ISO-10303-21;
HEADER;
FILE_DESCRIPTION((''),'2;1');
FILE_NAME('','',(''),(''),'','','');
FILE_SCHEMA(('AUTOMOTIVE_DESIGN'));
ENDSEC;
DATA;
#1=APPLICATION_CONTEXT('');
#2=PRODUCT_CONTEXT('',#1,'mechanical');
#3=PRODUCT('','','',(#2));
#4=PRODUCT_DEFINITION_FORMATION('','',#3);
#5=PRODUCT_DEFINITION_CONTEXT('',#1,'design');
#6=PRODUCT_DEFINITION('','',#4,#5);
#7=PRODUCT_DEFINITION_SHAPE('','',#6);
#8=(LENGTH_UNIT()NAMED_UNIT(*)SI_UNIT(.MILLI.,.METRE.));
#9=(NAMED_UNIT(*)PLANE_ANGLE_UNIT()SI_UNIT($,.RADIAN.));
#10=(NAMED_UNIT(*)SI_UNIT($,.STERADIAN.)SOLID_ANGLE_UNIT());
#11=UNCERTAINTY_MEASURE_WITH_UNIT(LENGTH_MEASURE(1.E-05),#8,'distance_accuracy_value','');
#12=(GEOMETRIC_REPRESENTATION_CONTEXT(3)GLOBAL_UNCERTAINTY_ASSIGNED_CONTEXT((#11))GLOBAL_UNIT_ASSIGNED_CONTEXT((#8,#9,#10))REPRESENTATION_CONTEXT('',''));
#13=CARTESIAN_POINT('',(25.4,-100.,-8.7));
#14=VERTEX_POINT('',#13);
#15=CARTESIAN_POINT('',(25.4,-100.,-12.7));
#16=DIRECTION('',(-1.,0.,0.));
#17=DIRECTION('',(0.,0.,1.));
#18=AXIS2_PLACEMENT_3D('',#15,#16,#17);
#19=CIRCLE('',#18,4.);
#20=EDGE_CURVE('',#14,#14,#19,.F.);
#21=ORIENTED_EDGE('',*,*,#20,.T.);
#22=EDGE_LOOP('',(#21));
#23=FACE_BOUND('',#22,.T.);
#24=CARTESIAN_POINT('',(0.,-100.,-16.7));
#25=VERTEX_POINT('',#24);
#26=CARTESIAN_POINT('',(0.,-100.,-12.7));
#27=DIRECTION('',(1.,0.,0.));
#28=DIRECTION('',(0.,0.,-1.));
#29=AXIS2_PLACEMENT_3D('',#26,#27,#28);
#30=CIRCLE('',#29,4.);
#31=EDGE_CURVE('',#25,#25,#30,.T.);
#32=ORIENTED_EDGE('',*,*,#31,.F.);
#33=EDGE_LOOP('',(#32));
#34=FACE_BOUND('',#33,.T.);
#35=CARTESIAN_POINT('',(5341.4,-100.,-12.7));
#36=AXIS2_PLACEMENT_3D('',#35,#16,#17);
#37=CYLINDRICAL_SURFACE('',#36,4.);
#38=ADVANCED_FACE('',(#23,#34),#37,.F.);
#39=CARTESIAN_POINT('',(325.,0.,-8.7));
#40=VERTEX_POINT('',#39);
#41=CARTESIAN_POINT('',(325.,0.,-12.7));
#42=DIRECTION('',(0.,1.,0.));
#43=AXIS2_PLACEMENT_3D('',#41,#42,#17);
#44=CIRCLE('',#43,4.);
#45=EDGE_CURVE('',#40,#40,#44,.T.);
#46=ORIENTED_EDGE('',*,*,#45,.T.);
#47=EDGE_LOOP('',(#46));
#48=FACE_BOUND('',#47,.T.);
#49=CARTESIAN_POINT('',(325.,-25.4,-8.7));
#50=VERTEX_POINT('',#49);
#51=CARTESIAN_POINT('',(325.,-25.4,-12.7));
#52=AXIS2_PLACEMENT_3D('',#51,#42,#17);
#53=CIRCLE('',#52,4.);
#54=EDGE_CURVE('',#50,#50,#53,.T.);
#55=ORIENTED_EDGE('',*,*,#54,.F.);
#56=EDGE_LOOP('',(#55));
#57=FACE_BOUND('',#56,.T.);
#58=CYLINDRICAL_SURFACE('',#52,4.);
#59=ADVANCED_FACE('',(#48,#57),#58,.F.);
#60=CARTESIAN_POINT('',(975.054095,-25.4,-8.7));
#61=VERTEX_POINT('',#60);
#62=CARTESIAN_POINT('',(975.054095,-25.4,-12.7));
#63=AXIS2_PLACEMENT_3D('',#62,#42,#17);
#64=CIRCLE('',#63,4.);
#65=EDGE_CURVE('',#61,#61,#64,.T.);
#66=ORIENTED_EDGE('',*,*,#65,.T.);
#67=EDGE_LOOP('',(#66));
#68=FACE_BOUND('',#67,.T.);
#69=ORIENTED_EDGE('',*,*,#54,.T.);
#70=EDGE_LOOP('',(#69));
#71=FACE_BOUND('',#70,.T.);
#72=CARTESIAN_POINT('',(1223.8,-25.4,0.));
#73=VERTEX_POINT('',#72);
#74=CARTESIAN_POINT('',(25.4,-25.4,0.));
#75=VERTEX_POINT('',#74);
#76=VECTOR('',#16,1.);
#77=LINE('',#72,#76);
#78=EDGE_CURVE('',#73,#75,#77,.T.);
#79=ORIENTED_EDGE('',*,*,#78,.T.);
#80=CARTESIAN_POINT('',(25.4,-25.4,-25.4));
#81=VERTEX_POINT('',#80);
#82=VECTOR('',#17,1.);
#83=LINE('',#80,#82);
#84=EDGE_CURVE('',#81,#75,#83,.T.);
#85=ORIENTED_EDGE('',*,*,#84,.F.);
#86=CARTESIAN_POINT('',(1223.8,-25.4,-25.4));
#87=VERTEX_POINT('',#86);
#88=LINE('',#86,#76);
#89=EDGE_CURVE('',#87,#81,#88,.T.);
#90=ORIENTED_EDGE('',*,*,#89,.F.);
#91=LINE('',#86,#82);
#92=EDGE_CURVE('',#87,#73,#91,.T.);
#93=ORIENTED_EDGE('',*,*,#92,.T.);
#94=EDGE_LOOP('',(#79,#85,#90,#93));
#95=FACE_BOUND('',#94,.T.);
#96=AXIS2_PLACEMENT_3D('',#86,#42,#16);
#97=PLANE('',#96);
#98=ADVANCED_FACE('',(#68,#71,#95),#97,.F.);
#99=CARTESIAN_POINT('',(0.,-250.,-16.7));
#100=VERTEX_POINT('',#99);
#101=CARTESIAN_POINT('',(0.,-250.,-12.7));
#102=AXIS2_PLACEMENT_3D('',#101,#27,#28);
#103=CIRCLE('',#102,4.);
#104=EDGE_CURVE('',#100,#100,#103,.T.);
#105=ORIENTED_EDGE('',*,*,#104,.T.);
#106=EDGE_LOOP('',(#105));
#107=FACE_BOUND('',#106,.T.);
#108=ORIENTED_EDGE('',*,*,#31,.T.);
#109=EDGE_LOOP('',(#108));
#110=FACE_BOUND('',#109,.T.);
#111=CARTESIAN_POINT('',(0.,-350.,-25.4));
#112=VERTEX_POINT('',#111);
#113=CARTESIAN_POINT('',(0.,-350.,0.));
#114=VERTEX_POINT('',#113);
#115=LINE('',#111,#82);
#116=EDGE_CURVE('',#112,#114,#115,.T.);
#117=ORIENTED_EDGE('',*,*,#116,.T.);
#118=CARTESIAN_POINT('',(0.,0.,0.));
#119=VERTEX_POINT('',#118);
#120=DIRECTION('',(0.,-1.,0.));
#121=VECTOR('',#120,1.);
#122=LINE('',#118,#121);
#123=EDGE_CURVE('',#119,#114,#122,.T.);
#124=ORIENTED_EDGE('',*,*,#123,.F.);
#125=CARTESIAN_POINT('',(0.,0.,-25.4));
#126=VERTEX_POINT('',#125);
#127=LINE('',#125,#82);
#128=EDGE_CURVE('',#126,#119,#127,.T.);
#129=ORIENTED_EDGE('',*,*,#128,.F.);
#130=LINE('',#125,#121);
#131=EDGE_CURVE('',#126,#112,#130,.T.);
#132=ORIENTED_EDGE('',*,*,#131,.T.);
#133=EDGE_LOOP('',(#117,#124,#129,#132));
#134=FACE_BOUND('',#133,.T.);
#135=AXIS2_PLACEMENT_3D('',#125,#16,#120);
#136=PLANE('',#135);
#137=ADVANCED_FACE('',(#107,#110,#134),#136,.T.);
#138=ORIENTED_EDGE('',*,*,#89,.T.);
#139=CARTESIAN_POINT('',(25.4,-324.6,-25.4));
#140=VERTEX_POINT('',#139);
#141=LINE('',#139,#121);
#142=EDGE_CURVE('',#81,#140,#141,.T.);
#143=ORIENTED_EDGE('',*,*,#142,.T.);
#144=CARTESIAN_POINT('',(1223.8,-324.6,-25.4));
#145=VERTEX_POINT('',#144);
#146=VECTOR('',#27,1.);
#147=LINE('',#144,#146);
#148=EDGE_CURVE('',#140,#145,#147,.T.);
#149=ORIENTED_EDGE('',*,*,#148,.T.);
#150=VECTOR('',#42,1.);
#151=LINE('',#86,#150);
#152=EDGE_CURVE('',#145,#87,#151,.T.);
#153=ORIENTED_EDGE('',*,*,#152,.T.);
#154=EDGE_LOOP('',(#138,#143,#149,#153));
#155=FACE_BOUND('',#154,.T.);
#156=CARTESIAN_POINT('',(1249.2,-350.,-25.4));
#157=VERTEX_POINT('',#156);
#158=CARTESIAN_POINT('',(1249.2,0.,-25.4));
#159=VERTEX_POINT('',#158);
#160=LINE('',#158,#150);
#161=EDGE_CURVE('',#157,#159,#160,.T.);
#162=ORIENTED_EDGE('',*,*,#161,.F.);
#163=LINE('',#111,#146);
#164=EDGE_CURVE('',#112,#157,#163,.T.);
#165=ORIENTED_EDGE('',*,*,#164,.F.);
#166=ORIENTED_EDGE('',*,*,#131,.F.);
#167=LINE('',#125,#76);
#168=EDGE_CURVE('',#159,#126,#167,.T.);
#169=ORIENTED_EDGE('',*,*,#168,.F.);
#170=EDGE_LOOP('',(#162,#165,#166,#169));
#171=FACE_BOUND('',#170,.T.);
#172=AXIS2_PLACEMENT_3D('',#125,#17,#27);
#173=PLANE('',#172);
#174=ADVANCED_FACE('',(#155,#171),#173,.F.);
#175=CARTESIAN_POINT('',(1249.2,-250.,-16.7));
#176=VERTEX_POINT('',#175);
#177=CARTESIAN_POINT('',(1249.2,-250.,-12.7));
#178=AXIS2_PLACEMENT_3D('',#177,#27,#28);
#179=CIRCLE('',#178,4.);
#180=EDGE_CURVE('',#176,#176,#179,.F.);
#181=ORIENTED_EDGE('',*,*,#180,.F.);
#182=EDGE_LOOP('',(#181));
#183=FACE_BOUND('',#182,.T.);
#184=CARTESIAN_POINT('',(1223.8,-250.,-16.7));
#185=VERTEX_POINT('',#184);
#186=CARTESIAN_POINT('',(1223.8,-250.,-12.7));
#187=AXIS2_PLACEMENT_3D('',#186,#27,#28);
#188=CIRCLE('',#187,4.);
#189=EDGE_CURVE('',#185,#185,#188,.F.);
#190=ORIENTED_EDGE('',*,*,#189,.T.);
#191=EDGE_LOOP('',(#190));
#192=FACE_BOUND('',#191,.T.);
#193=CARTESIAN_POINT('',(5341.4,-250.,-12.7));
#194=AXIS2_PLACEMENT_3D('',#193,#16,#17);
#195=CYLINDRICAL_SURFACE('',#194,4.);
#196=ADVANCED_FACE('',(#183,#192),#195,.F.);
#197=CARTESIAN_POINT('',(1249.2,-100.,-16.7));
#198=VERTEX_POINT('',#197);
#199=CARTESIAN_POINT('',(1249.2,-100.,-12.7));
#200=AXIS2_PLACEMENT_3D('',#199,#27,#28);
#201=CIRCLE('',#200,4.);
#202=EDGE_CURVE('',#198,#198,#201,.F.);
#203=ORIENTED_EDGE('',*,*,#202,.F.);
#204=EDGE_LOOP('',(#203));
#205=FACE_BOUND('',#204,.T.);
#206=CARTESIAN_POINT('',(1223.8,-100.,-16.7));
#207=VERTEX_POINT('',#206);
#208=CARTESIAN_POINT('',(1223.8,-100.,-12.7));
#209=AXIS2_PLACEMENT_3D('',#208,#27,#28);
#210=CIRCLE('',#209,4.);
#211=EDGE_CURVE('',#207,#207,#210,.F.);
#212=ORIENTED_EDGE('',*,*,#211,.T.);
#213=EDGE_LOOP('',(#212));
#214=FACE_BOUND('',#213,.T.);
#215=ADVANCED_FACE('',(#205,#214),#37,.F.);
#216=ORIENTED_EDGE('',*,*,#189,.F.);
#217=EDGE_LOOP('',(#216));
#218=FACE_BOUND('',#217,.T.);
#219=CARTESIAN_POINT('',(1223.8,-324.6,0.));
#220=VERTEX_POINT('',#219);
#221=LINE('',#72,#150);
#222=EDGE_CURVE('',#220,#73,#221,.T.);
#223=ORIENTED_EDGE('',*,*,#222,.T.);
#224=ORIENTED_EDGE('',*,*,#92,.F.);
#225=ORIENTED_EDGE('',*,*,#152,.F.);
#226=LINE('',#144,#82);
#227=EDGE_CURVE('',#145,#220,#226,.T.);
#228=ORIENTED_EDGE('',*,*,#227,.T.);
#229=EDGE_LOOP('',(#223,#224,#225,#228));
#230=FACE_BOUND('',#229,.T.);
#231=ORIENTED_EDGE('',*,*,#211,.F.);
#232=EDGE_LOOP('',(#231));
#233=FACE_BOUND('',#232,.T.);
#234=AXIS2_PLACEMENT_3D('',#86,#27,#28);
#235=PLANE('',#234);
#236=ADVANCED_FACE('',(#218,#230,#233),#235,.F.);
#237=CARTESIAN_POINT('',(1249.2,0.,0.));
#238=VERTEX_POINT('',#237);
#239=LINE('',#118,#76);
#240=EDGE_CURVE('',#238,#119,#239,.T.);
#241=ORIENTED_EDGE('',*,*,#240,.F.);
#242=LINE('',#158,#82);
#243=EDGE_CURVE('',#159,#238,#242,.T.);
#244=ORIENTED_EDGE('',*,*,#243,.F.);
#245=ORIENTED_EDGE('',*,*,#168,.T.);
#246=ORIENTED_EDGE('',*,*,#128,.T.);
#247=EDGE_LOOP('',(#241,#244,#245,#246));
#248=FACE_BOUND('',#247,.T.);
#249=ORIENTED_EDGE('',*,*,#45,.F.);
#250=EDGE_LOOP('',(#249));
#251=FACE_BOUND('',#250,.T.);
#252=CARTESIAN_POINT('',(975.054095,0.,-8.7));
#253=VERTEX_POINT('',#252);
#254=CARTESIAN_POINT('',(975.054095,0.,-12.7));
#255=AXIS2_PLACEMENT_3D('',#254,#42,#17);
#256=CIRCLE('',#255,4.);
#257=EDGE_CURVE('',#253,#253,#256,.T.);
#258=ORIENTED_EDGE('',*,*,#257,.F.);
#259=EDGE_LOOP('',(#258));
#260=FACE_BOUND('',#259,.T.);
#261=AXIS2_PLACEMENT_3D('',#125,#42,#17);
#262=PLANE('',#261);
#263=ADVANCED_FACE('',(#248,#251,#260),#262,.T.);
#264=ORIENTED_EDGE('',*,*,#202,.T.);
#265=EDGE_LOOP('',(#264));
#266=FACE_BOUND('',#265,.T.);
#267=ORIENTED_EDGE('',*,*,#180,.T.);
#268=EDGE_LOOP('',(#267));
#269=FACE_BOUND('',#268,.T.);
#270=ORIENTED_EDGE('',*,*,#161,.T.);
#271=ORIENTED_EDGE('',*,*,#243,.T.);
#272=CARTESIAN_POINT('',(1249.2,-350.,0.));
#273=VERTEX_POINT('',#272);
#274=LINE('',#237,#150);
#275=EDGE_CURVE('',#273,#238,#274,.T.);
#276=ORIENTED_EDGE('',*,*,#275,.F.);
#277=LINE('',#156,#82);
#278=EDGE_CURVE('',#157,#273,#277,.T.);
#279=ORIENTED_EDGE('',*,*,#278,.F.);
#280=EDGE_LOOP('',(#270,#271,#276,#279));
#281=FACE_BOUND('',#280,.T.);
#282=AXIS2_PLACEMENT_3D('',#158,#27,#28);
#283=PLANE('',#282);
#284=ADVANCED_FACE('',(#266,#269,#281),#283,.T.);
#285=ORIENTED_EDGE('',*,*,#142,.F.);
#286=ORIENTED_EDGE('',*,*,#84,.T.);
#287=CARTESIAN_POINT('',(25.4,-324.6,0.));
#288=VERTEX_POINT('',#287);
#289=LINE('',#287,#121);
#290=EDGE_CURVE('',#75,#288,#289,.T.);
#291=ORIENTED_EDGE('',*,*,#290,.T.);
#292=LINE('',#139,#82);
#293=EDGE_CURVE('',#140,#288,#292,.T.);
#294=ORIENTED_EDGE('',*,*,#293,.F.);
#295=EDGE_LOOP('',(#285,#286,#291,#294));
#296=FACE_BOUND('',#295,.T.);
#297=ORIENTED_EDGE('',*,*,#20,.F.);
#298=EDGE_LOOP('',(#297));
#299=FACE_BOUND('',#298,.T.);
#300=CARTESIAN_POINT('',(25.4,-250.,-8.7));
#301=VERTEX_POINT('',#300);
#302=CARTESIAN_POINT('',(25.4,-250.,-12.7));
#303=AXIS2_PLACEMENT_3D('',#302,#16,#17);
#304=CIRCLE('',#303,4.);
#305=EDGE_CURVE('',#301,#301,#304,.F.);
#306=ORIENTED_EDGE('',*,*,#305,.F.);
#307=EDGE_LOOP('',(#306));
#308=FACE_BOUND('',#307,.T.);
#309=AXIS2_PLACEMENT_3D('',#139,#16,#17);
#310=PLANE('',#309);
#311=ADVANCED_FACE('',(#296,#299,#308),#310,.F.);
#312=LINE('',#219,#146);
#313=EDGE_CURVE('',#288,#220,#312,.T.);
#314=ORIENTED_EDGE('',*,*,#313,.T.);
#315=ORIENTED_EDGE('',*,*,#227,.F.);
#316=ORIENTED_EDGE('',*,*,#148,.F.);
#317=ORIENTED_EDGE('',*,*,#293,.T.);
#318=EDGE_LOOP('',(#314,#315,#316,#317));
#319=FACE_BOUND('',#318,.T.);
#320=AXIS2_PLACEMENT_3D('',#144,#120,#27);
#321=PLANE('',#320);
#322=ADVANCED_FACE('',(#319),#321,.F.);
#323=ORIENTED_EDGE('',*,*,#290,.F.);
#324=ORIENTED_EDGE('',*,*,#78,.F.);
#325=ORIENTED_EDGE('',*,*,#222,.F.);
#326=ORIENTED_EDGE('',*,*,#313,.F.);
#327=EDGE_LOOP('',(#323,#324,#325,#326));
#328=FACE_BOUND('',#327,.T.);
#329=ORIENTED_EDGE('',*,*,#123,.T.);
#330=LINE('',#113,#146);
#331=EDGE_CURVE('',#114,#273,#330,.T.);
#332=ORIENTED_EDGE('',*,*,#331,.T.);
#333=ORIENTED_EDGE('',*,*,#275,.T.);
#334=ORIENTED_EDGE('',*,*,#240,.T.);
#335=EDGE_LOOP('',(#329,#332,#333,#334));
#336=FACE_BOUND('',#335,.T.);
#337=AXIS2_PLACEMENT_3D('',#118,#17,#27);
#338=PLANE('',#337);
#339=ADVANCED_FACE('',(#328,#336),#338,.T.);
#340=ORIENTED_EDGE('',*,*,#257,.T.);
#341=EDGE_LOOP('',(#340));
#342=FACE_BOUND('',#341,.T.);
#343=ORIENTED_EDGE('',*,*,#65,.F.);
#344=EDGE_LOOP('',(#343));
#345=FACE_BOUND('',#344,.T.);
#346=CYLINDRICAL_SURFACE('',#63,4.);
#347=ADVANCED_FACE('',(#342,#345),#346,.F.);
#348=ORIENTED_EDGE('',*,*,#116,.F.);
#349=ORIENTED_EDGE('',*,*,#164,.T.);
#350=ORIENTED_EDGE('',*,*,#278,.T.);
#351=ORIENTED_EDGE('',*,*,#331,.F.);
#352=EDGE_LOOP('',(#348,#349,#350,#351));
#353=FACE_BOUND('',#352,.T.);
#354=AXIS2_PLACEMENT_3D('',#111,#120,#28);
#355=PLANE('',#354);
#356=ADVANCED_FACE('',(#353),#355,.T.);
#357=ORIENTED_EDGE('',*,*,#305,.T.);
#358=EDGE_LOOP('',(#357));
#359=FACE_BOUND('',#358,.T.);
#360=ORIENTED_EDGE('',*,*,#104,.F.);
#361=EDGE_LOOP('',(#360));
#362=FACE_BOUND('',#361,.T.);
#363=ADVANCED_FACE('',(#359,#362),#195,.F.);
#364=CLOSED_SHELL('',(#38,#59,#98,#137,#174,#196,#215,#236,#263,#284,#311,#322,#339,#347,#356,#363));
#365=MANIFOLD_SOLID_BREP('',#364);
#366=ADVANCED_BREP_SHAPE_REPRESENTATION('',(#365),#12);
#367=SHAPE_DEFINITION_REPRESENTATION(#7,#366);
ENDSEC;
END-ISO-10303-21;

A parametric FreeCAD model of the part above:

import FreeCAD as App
import Part
import Sketcher

V = App.Vector
Q = App.Units.Quantity

doc = App.newDocument("Part")
params = doc.addObject("Spreadsheet::Sheet", "Params")
for row, (alias, value) in enumerate([
    ("sketch1_height", "350 mm"),
    ("sketch1_width", "1249.2 mm"),
    ("sketch1_width2", "1198.4 mm"),
    ("sketch1_height2", "299.2 mm"),
    ("pad1_length", "25.4 mm"),
    ("sketch2_diameter", "8 mm"),
    ("pocket1_length", "25.4 mm"),
    ("sketch3_diameter", "8 mm"),
    ("pocket2_length", "5341.4 mm"),
], start=1):
    params.set(f"A{row}", alias)
    params.set(f"B{row}", "=" + value)
    params.setAlias(f"B{row}", alias)

body = doc.addObject("PartDesign::Body", "Body")

# Sketch on XY plane
sketch1 = body.newObject("Sketcher::SketchObject", "Sketch")
sketch1.AttachmentSupport = (doc.getObject("XY_Plane"), [""])
sketch1.MapMode = "FlatFace"
sketch1.addGeometry([
    Part.LineSegment(V(0, 0, 0), V(0, -350, 0)),  # 0
    Part.LineSegment(V(0, -350, 0), V(1249, -350, 0)),  # 1
    Part.LineSegment(V(1249, -350, 0), V(1249, 0, 0)),  # 2
    Part.LineSegment(V(1249, 0, 0), V(0, 0, 0)),  # 3
    Part.LineSegment(V(1224, -325, 0), V(25, -325, 0)),  # 4
    Part.LineSegment(V(25, -325, 0), V(25, -25, 0)),  # 5
    Part.LineSegment(V(25, -25, 0), V(1224, -25, 0)),  # 6
    Part.LineSegment(V(1224, -25, 0), V(1224, -325, 0)),  # 7
], False)
sketch1.addConstraint([
    Sketcher.Constraint("Coincident", 0, 2, 1, 1),
    Sketcher.Constraint("Coincident", 1, 2, 2, 1),
    Sketcher.Constraint("Coincident", 2, 2, 3, 1),
    Sketcher.Constraint("Coincident", 3, 2, 0, 1),
    Sketcher.Constraint("Coincident", 4, 2, 5, 1),
    Sketcher.Constraint("Coincident", 5, 2, 6, 1),
    Sketcher.Constraint("Coincident", 6, 2, 7, 1),
    Sketcher.Constraint("Coincident", 7, 2, 4, 1),
    Sketcher.Constraint("Vertical", 0),
    Sketcher.Constraint("Horizontal", 1),
    Sketcher.Constraint("Vertical", 2),
    Sketcher.Constraint("Horizontal", 3),
    Sketcher.Constraint("Horizontal", 4),
    Sketcher.Constraint("Vertical", 5),
    Sketcher.Constraint("Horizontal", 6),
    Sketcher.Constraint("Vertical", 7),
    Sketcher.Constraint("Coincident", 3, 2, -1, 1),
    Sketcher.Constraint("DistanceY", 0, 2, 0, 1, Q("350 mm")),
    Sketcher.Constraint("DistanceX", 1, 1, 1, 2, Q("1249.2 mm")),
    Sketcher.Constraint("DistanceX", 4, 2, 4, 1, Q("1198.4 mm")),
    Sketcher.Constraint("DistanceY", 5, 1, 5, 2, Q("299.2 mm")),
    Sketcher.Constraint("DistanceX", -1, 1, 4, 2, Q("25.4 mm")),
    Sketcher.Constraint("DistanceY", 4, 2, -1, 1, Q("324.6 mm")),
])
sketch1.setExpression("Constraints[17]", "Params.sketch1_height")
sketch1.setExpression("Constraints[18]", "Params.sketch1_width")
sketch1.setExpression("Constraints[19]", "Params.sketch1_width2")
sketch1.setExpression("Constraints[20]", "Params.sketch1_height2")
pad1 = body.newObject("PartDesign::Pad", "Pad")
pad1.Profile = sketch1
pad1.setExpression("Length", "Params.pad1_length")
pad1.Reversed = True

# Sketch on XZ plane
sketch2 = body.newObject("Sketcher::SketchObject", "Sketch001")
sketch2.AttachmentSupport = (doc.getObject("XZ_Plane"), [""])
sketch2.MapMode = "FlatFace"
sketch2.addGeometry([
    Part.Circle(V(325, -12.7, 0), V(0, 0, 1), 4),
    Part.Circle(V(975.1, -12.7, 0), V(0, 0, 1), 4),
], False)
sketch2.addConstraint([
    Sketcher.Constraint("Equal", 0, 1),
    Sketcher.Constraint("Horizontal", 0, 3, 1, 3),
    Sketcher.Constraint("Diameter", 0, Q("8 mm")),
    Sketcher.Constraint("DistanceX", -1, 1, 0, 3, Q("325 mm")),
    Sketcher.Constraint("DistanceY", 0, 3, -1, 1, Q("12.7 mm")),
    Sketcher.Constraint("DistanceX", -1, 1, 1, 3, Q("975.054095 mm")),
])
sketch2.setExpression("Constraints[2]", "Params.sketch2_diameter")
pocket1 = body.newObject("PartDesign::Pocket", "Pocket")
pocket1.Profile = sketch2
pocket1.setExpression("Length", "Params.pocket1_length")
pocket1.Reversed = True

# Sketch on YZ plane
sketch3 = body.newObject("Sketcher::SketchObject", "Sketch002")
sketch3.AttachmentSupport = (doc.getObject("YZ_Plane"), [""])
sketch3.MapMode = "FlatFace"
sketch3.addGeometry([
    Part.Circle(V(-100, -12.7, 0), V(0, 0, 1), 4),
    Part.Circle(V(-250, -12.7, 0), V(0, 0, 1), 4),
], False)
sketch3.addConstraint([
    Sketcher.Constraint("Equal", 0, 1),
    Sketcher.Constraint("Horizontal", 0, 3, 1, 3),
    Sketcher.Constraint("Diameter", 0, Q("8 mm")),
    Sketcher.Constraint("DistanceX", 0, 3, -1, 1, Q("100 mm")),
    Sketcher.Constraint("DistanceX", 1, 3, -1, 1, Q("250 mm")),
    Sketcher.Constraint("DistanceY", 0, 3, -1, 1, Q("12.7 mm")),
])
sketch3.setExpression("Constraints[2]", "Params.sketch3_diameter")
pocket2 = body.newObject("PartDesign::Pocket", "Pocket001")
pocket2.Profile = sketch3
pocket2.setExpression("Length", "Params.pocket2_length")
pocket2.Reversed = True

doc.recompute()
